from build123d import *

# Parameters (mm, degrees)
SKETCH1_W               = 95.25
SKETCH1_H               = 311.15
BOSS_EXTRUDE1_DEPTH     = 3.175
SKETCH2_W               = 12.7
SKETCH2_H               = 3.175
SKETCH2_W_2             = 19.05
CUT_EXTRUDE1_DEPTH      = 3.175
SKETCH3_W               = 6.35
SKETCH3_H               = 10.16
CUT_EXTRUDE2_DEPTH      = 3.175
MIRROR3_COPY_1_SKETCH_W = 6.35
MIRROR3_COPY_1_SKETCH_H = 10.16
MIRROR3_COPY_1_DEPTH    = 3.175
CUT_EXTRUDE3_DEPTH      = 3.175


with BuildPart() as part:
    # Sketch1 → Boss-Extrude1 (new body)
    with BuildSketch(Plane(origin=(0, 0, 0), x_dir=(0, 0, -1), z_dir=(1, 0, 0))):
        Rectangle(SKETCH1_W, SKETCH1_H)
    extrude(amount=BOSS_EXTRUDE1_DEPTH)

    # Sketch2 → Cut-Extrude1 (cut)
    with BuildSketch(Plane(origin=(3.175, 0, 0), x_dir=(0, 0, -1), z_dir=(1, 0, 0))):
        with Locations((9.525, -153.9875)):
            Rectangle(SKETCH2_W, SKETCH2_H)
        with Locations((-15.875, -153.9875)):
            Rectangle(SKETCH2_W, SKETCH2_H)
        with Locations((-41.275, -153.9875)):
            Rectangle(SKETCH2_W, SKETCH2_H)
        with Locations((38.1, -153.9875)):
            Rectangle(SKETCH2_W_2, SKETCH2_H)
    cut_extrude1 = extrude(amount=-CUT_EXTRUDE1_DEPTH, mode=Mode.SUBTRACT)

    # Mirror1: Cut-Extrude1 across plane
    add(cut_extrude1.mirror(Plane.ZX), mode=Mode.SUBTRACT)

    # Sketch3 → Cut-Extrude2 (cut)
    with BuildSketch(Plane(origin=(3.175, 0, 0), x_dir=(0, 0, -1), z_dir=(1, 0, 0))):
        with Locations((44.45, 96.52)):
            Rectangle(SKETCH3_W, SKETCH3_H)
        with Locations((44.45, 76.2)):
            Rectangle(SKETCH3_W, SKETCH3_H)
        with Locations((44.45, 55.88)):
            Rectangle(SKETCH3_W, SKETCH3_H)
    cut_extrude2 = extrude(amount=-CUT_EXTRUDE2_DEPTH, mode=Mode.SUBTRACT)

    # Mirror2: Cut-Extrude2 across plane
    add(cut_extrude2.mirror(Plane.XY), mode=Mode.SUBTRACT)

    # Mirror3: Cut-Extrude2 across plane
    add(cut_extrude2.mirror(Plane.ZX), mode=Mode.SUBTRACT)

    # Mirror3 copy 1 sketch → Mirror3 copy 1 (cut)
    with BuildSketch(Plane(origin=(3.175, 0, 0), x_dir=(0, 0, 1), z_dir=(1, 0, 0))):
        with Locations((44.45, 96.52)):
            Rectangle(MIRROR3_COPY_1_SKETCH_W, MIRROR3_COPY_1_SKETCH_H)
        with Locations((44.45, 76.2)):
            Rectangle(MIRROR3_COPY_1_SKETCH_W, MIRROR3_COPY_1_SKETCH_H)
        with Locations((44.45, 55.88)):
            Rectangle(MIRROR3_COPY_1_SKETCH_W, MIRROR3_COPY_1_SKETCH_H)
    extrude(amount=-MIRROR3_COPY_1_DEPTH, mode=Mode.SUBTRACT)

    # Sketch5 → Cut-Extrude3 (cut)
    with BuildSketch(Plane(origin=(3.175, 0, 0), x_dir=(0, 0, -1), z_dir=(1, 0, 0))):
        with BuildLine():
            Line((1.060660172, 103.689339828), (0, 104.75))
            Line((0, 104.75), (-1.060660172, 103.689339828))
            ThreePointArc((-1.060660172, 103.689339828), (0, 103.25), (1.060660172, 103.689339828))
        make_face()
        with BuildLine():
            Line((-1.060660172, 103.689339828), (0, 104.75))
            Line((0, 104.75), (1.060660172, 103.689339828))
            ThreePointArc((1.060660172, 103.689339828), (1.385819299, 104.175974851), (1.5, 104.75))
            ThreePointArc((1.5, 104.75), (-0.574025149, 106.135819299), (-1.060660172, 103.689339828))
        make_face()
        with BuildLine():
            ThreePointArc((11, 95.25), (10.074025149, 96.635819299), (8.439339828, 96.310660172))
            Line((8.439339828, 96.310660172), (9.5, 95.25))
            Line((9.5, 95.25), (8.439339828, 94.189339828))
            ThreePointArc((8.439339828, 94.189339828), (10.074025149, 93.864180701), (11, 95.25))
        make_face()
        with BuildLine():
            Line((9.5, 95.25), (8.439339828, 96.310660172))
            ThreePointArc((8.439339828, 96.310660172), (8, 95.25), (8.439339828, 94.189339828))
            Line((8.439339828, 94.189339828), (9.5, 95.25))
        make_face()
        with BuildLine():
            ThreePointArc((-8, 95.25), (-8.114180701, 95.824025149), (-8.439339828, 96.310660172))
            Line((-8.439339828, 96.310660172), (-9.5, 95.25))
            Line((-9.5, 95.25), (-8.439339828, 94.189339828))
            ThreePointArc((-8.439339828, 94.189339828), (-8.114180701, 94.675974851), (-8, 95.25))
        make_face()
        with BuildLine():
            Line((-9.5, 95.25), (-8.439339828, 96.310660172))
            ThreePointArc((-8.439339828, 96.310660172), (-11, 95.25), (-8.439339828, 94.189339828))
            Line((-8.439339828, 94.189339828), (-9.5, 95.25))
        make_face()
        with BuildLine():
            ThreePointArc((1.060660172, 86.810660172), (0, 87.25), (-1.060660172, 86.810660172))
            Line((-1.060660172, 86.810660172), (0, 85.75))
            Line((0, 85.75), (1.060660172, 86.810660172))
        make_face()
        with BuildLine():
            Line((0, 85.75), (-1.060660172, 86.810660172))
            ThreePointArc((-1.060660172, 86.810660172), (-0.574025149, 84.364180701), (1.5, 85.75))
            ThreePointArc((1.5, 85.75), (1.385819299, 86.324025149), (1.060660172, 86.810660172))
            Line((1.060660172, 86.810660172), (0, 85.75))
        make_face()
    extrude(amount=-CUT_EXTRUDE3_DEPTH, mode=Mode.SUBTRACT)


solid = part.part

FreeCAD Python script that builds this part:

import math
import FreeCAD as App
import Part
import Sketcher
from FreeCAD import Vector
Q = App.Units.Quantity


def add_polygon(sketch, points):
    """Adds a closed chain of lines whose ends are joined by coincident constraints."""
    first, n = sketch.GeometryCount, len(points)
    for a, b in zip(points, points[1:] + points[:1]):
        sketch.addGeometry(Part.LineSegment(App.Vector(*a, 0), App.Vector(*b, 0)), False)
    for i in range(n):
        sketch.addConstraint(Sketcher.Constraint("Coincident", first + i, 2, first + (i + 1) % n, 1))

doc = App.newDocument("Part")
body = doc.addObject("PartDesign::Body", "Body")

sketch1 = body.newObject("Sketcher::SketchObject", "Sketch")
sketch1.AttachmentSupport = (doc.getObject("YZ_Plane"), [""])
sketch1.MapMode = "FlatFace"
add_polygon(sketch1, [(156, 48), (-156, 48), (-156, -48), (156, -48)])
sketch1.addConstraint([
    Sketcher.Constraint("Horizontal", 0),
    Sketcher.Constraint("Vertical", 1),
    Sketcher.Constraint("Horizontal", 2),
    Sketcher.Constraint("Vertical", 3),
    Sketcher.Constraint("Symmetric", 0, 2, 2, 2, -1, 1),
    Sketcher.Constraint("DistanceX", 0, 2, 0, 1, Q("12.25 in")),
    Sketcher.Constraint("DistanceY", 1, 2, 1, 1, Q("3.75 in")),
])
pad1 = body.newObject("PartDesign::Pad", "Pad")
pad1.Profile = sketch1
pad1.Length = Q("0.125 in")

sketch2 = body.newObject("Sketcher::SketchObject", "Sketch001")
sketch2.AttachmentSupport = (doc.getObject("YZ_Plane"), [""])
sketch2.MapMode = "FlatFace"
sketch2.AttachmentOffset = App.Placement(Vector(0, 0, 0.125 * 25.4), App.Rotation())
add_polygon(sketch2, [(-152.4, -3.2), (-155.6, -3.2), (-155.6, -15.9), (-152.4, -15.9)])
add_polygon(sketch2, [(-152.4, 22.2), (-155.6, 22.2), (-155.6, 9.5), (-152.4, 9.5)])
add_polygon(sketch2, [(-152.4, 47.6), (-155.6, 47.6), (-155.6, 34.9), (-152.4, 34.9)])
add_polygon(sketch2, [(-152.4, -28.6), (-155.6, -28.6), (-155.6, -47.6), (-152.4, -47.6)])
sketch2.addConstraint([
    Sketcher.Constraint("Horizontal", 0),
    Sketcher.Constraint("Vertical", 1),
    Sketcher.Constraint("Horizontal", 2),
    Sketcher.Constraint("Vertical", 3),
    Sketcher.Constraint("Horizontal", 4),
    Sketcher.Constraint("Vertical", 5),
    Sketcher.Constraint("Horizontal", 6),
    Sketcher.Constraint("Vertical", 7),
    Sketcher.Constraint("Horizontal", 8),
    Sketcher.Constraint("Vertical", 9),
    Sketcher.Constraint("Horizontal", 10),
    Sketcher.Constraint("Vertical", 11),
    Sketcher.Constraint("Horizontal", 12),
    Sketcher.Constraint("Vertical", 13),
    Sketcher.Constraint("Horizontal", 14),
    Sketcher.Constraint("Vertical", 15),
    Sketcher.Constraint("Symmetric", 8, 2, 13, 2, -1),
    Sketcher.Constraint("Vertical", 1, 2, 4, 2),
    Sketcher.Constraint("Vertical", 3, 2, 6, 2),
    Sketcher.Constraint("Vertical", 5, 2, 8, 2),
    Sketcher.Constraint("Vertical", 7, 2, 10, 2),
    Sketcher.Constraint("Vertical", 11, 2, 14, 2),
    Sketcher.Constraint("Equal", 3, 5),
    Sketcher.Constraint("Equal", 7, 9),
    Sketcher.Constraint("DistanceY", 1, 2, 1, 1, Q("0.5 in")),
    Sketcher.Constraint("DistanceX", 2, 2, -1, 1, Q("6 in")),
    Sketcher.Constraint("DistanceY", 0, 2, 4, 2, Q("1 in")),
    Sketcher.Constraint("DistanceY", 4, 2, 8, 2, Q("1 in")),
    Sketcher.Constraint("DistanceY", 12, 2, 0, 2, Q("1 in")),
    Sketcher.Constraint("DistanceY", 13, 2, 13, 1, Q("0.75 in")),
    Sketcher.Constraint("DistanceX", 0, 2, 0, 1, Q("0.125 in")),
])
pocket1 = body.newObject("PartDesign::Pocket", "Pocket")
pocket1.Profile = sketch2
pocket1.Length = Q("0.125 in")
doc.recompute()

mirrored = body.newObject("PartDesign::Mirrored", "Mirrored")
mirrored.Originals = [pocket1]
mirrored.MirrorPlane = (doc.getObject("XZ_Plane"), [""])
body.Tip = mirrored

sketch3 = body.newObject("Sketcher::SketchObject", "Sketch002")
sketch3.AttachmentSupport = (doc.getObject("YZ_Plane"), [""])
sketch3.MapMode = "FlatFace"
sketch3.AttachmentOffset = App.Placement(Vector(0, 0, 0.125 * 25.4), App.Rotation())
add_polygon(sketch3, [(102, -41), (91, -41), (91, -48), (102, -48)])
add_polygon(sketch3, [(81, -41), (71, -41), (71, -48), (81, -48)])
add_polygon(sketch3, [(61, -41), (51, -41), (51, -48), (61, -48)])
sketch3.addConstraint([
    Sketcher.Constraint("Horizontal", 0),
    Sketcher.Constraint("Vertical", 1),
    Sketcher.Constraint("Horizontal", 2),
    Sketcher.Constraint("Vertical", 3),
    Sketcher.Constraint("Horizontal", 4),
    Sketcher.Constraint("Vertical", 5),
    Sketcher.Constraint("Horizontal", 6),
    Sketcher.Constraint("Vertical", 7),
    Sketcher.Constraint("Horizontal", 8),
    Sketcher.Constraint("Vertical", 9),
    Sketcher.Constraint("Horizontal", 10),
    Sketcher.Constraint("Vertical", 11),
    Sketcher.Constraint("Horizontal", 3, 2, 4, 2),
    Sketcher.Constraint("Horizontal", 2, 2, 5, 2),
    Sketcher.Constraint("Horizontal", 7, 2, 8, 2),
    Sketcher.Constraint("Horizontal", 6, 2, 9, 2),
    Sketcher.Constraint("Equal", 2, 4),
    Sketcher.Constraint("Equal", 6, 8),
    Sketcher.Constraint("DistanceX", 0, 2, 0, 1, Q("0.4 in")),
    Sketcher.Constraint("DistanceX", -1, 1, 2, 2, Q("4 in")),
    Sketcher.Constraint("DistanceX", -1, 1, 8, 2, Q("2 in")),
    Sketcher.Constraint("DistanceY", 1, 2, 1, 1, Q("0.25 in")),
    Sketcher.Constraint("DistanceX", -1, 1, 4, 2, Q("2.8 in")),
    Sketcher.Constraint("DistanceY", 0, 2, -1, 1, Q("1.625 in")),
])
pocket2 = body.newObject("PartDesign::Pocket", "Pocket001")
pocket2.Profile = sketch3
pocket2.Length = Q("0.125 in")
doc.recompute()

mirrored2 = body.newObject("PartDesign::Mirrored", "Mirrored001")
mirrored2.Originals = [pocket2]
mirrored2.MirrorPlane = (doc.getObject("XY_Plane"), [""])
body.Tip = mirrored2
doc.recompute()

mirrored3 = body.newObject("PartDesign::Mirrored", "Mirrored002")
mirrored3.Originals = [pocket2]
mirrored3.MirrorPlane = (doc.getObject("XZ_Plane"), [""])
body.Tip = mirrored3

sketch4 = body.newObject("Sketcher::SketchObject", "Sketch003")
sketch4.AttachmentSupport = (doc.getObject("YZ_Plane"), [""])
sketch4.MapMode = "FlatFace"
sketch4.AttachmentOffset = App.Placement(Vector(0, 0, 0.125 * 25.4), App.Rotation())
add_polygon(sketch4, [(-102, 41), (-91, 41), (-91, 48), (-102, 48)])
add_polygon(sketch4, [(-81, 41), (-71, 41), (-71, 48), (-81, 48)])
add_polygon(sketch4, [(-61, 41), (-51, 41), (-51, 48), (-61, 48)])
sketch4.addConstraint([
    Sketcher.Constraint("Horizontal", 0),
    Sketcher.Constraint("Vertical", 1),
    Sketcher.Constraint("Horizontal", 2),
    Sketcher.Constraint("Vertical", 3),
    Sketcher.Constraint("Horizontal", 4),
    Sketcher.Constraint("Vertical", 5),
    Sketcher.Constraint("Horizontal", 6),
    Sketcher.Constraint("Vertical", 7),
    Sketcher.Constraint("Horizontal", 8),
    Sketcher.Constraint("Vertical", 9),
    Sketcher.Constraint("Horizontal", 10),
    Sketcher.Constraint("Vertical", 11),
    Sketcher.Constraint("Horizontal", 3, 2, 4, 2),
    Sketcher.Constraint("Horizontal", 2, 2, 5, 2),
    Sketcher.Constraint("Horizontal", 7, 2, 8, 2),
    Sketcher.Constraint("Horizontal", 6, 2, 9, 2),
    Sketcher.Constraint("Equal", 2, 4),
    Sketcher.Constraint("Equal", 6, 8),
    Sketcher.Constraint("DistanceX", 0, 1, 0, 2, Q("0.4 in")),
    Sketcher.Constraint("DistanceX", 2, 2, -1, 1, Q("4 in")),
    Sketcher.Constraint("DistanceX", 8, 2, -1, 1, Q("2 in")),
    Sketcher.Constraint("DistanceY", 1, 1, 1, 2, Q("0.25 in")),
    Sketcher.Constraint("DistanceX", 4, 2, -1, 1, Q("2.8 in")),
    Sketcher.Constraint("DistanceY", -1, 1, 0, 2, Q("1.625 in")),
])
pocket3 = body.newObject("PartDesign::Pocket", "Pocket002")
pocket3.Profile = sketch4
pocket3.Length = Q("0.125 in")

sketch5 = body.newObject("Sketcher::SketchObject", "Sketch004")
sketch5.AttachmentSupport = (doc.getObject("YZ_Plane"), [""])
sketch5.MapMode = "FlatFace"
sketch5.AttachmentOffset = App.Placement(Vector(0, 0, 0.125 * 25.4), App.Rotation())
sketch5.addGeometry([
    Part.ArcOfCircle(Part.Circle(Vector(104.8, 0, 0), Vector(0, 0, 1), 1.5), math.radians(135), math.radians(225)),
    Part.ArcOfCircle(Part.Circle(Vector(104.7, 0, 0), Vector(0, 0, 1), 1.5), math.radians(-135), math.radians(-90)),
    Part.ArcOfCircle(Part.Circle(Vector(104.8, 0, 0), Vector(0, 0, 1), 1.5), math.radians(-90), math.radians(135)),
    Part.ArcOfCircle(Part.Circle(Vector(95.2, -9.5, 0), Vector(0, 0, 1), 1.5), math.radians(-90), math.radians(45)),
    Part.ArcOfCircle(Part.Circle(Vector(95.2, -9.5, 0), Vector(0, 0, 1), 1.5), math.radians(45), math.radians(135)),
    Part.ArcOfCircle(Part.Circle(Vector(95.2, -9.5, 0), Vector(0, 0, 1), 1.5), math.radians(135), math.radians(270)),
    Part.ArcOfCircle(Part.Circle(Vector(95.3, 9.5, 0), Vector(0, 0, 1), 1.5), math.radians(-90), math.radians(-45)),
    Part.ArcOfCircle(Part.Circle(Vector(95.2, 9.5, 0), Vector(0, 0, 1), 1.5), math.radians(-45), math.radians(225)),
    Part.ArcOfCircle(Part.Circle(Vector(95.2, 9.5, 0), Vector(0, 0, 1), 1.5), math.radians(-135), math.radians(-90)),
    Part.ArcOfCircle(Part.Circle(Vector(85.7, 0, 0), Vector(0, 0, 1), 1.5), math.radians(-45), math.radians(45)),
    Part.ArcOfCircle(Part.Circle(Vector(85.8, 0, 0), Vector(0, 0, 1), 1.5), math.radians(45), math.radians(270)),
    Part.ArcOfCircle(Part.Circle(Vector(85.8, 0, 0), Vector(0, 0, 1), 1.5), math.radians(-90), math.radians(-45)),
], False)
sketch5.addConstraint([
    Sketcher.Constraint("Tangent", 0, 2, 1, 1),
    Sketcher.Constraint("Tangent", 1, 2, 2, 1),
    Sketcher.Constraint("Tangent", 2, 2, 0, 1),
    Sketcher.Constraint("Tangent", 3, 2, 4, 1),
    Sketcher.Constraint("Tangent", 4, 2, 5, 1),
    Sketcher.Constraint("Tangent", 5, 2, 3, 1),
    Sketcher.Constraint("Tangent", 6, 2, 7, 1),
    Sketcher.Constraint("Tangent", 7, 2, 8, 1),
    Sketcher.Constraint("Tangent", 8, 2, 6, 1),
    Sketcher.Constraint("Tangent", 9, 2, 10, 1),
    Sketcher.Constraint("Tangent", 10, 2, 11, 1),
    Sketcher.Constraint("Tangent", 11, 2, 9, 1),
    Sketcher.Constraint("Equal", 2, 3),
    Sketcher.Constraint("Equal", 5, 6),
    Sketcher.Constraint("Equal", 8, 9),
    Sketcher.Constraint("Symmetric", 3, 3, 6, 3, -1),
    Sketcher.Constraint("Symmetric", 0, 2, 2, 2, -1),
    Sketcher.Constraint("Symmetric", 9, 2, 11, 2, -1),
    Sketcher.Constraint("Horizontal", 3, 2, 4, 2),
    Sketcher.Constraint("Horizontal", 6, 2, 7, 2),
    Sketcher.Constraint("Horizontal", 2, 2, 9, 2),
    Sketcher.Constraint("Vertical", 2, 3, 1, 2),
    Sketcher.Constraint("Vertical", 8, 3, 5, 2),
    Sketcher.Constraint("Vertical", 3, 2, 6, 2),
    Sketcher.Constraint("Vertical", 5, 2, 8, 2),
    Sketcher.Constraint("Vertical", 11, 3, 10, 2),
    Sketcher.Constraint("DistanceX", -1, 1, 3, 3, Q("3.75 in")),
    Sketcher.Constraint("Radius", 0, 1.5),
    Sketcher.Constraint("DistanceX", -1, 1, 0, 3, 104.75),
    Sketcher.Constraint("DistanceY", 3, 3, -1, 1, 9.5),
    Sketcher.Constraint("DistanceX", -1, 1, 9, 3, 85.75),
    Sketcher.Constraint("DistanceX", -1, 1, 0, 2, 103.68934),
    Sketcher.Constraint("DistanceX", -1, 1, 3, 2, 96.31066),
])
pocket4 = body.newObject("PartDesign::Pocket", "Pocket003")
pocket4.Profile = sketch5
pocket4.Length = Q("0.125 in")

doc.recompute()
